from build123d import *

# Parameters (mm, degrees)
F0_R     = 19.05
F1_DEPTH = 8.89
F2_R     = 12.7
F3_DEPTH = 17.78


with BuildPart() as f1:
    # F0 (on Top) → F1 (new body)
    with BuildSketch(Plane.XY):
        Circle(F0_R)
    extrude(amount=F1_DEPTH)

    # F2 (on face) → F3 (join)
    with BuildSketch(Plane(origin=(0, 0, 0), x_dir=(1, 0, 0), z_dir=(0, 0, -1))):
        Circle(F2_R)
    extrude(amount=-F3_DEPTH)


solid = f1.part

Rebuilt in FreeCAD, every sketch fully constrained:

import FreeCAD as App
import Part
import Sketcher

V = App.Vector
Q = App.Units.Quantity

doc = App.newDocument("Part")
body = doc.addObject("PartDesign::Body", "Body")

# Sketch on XY plane
sketch1 = body.newObject("Sketcher::SketchObject", "Sketch")
sketch1.AttachmentSupport = (doc.getObject("XY_Plane"), [""])
sketch1.MapMode = "FlatFace"
sketch1.addGeometry(Part.Circle(V(0, 0, 0), V(0, 0, 1), 19), False)
sketch1.addConstraint([
    Sketcher.Constraint("Coincident", 0, 3, -1, 1),
    Sketcher.Constraint("Diameter", 0, Q("1.5 in")),
])
pad1 = body.newObject("PartDesign::Pad", "Pad")
pad1.Profile = sketch1
pad1.Length = Q("0.35 in")

# Sketch on XY plane
sketch2 = body.newObject("Sketcher::SketchObject", "Sketch001")
sketch2.AttachmentSupport = (doc.getObject("XY_Plane"), [""])
sketch2.MapMode = "FlatFace"
sketch2.addGeometry(Part.Circle(V(0, 0, 0), V(0, 0, 1), 13), False)
sketch2.addConstraint([
    Sketcher.Constraint("Coincident", 0, 3, -1, 1),
    Sketcher.Constraint("Diameter", 0, Q("1 in")),
])
pad2 = body.newObject("PartDesign::Pad", "Pad001")
pad2.Profile = sketch2
pad2.Length = Q("0.7 in")

doc.recompute()
